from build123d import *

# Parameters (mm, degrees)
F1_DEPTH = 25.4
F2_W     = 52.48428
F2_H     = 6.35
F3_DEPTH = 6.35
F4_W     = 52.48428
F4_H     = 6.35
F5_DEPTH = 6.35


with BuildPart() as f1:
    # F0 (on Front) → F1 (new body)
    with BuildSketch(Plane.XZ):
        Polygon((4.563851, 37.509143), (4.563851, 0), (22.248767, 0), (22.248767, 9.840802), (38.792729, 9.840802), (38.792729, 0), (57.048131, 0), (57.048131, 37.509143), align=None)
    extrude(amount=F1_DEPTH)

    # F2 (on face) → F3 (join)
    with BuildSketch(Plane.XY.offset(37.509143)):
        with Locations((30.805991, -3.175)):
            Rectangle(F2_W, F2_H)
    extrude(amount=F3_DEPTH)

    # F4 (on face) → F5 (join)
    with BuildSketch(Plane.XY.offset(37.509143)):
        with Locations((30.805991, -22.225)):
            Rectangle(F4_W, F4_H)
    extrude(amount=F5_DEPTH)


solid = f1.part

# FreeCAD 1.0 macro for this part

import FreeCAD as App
import Part
import Sketcher
Q = App.Units.Quantity

doc = App.newDocument("Part")
body = doc.addObject("PartDesign::Body", "Body")

sketch1 = body.newObject("Sketcher::SketchObject", "Sketch")
sketch1.AttachmentSupport = (doc.getObject("XZ_Plane"), [""])
sketch1.MapMode = "FlatFace"
sketch1.addGeometry([
    Part.LineSegment(App.Vector(5, 38, 0), App.Vector(5, 0, 0)),
    Part.LineSegment(App.Vector(5, 0, 0), App.Vector(22, 0, 0)),
    Part.LineSegment(App.Vector(22, 0, 0), App.Vector(22, 10, 0)),
    Part.LineSegment(App.Vector(22, 10, 0), App.Vector(39, 10, 0)),
    Part.LineSegment(App.Vector(39, 10, 0), App.Vector(39, 0, 0)),
    Part.LineSegment(App.Vector(39, 0, 0), App.Vector(57, 0, 0)),
    Part.LineSegment(App.Vector(57, 0, 0), App.Vector(57, 38, 0)),
    Part.LineSegment(App.Vector(57, 38, 0), App.Vector(5, 38, 0)),
], False)
sketch1.addConstraint([
    Sketcher.Constraint("Coincident", 0, 2, 1, 1),
    Sketcher.Constraint("Coincident", 1, 2, 2, 1),
    Sketcher.Constraint("Coincident", 2, 2, 3, 1),
    Sketcher.Constraint("Coincident", 3, 2, 4, 1),
    Sketcher.Constraint("Coincident", 4, 2, 5, 1),
    Sketcher.Constraint("Coincident", 5, 2, 6, 1),
    Sketcher.Constraint("Coincident", 6, 2, 7, 1),
    Sketcher.Constraint("Coincident", 7, 2, 0, 1),
    Sketcher.Constraint("Vertical", 0),
    Sketcher.Constraint("Horizontal", 1),
    Sketcher.Constraint("Vertical", 2),
    Sketcher.Constraint("Horizontal", 3),
    Sketcher.Constraint("Vertical", 4),
    Sketcher.Constraint("Horizontal", 5),
    Sketcher.Constraint("Vertical", 6),
    Sketcher.Constraint("Horizontal", 7),
    Sketcher.Constraint("PointOnObject", 0, 2, -1),
    Sketcher.Constraint("PointOnObject", 4, 2, -1),
    Sketcher.Constraint("DistanceX", 5, 1, 5, 2, Q("18.255402 mm")),
    Sketcher.Constraint("DistanceX", 7, 2, 7, 1, Q("52.48428 mm")),
    Sketcher.Constraint("DistanceX", 1, 1, 1, 2, Q("17.684916 mm")),
    Sketcher.Constraint("DistanceY", 0, 2, 0, 1, Q("37.509143 mm")),
    Sketcher.Constraint("DistanceY", 2, 1, 2, 2, Q("9.840802 mm")),
    Sketcher.Constraint("DistanceX", -1, 1, 0, 2, Q("4.563851 mm")),
])
pad1 = body.newObject("PartDesign::Pad", "Pad")
pad1.Profile = sketch1
pad1.Length = Q("1 in")

sketch2 = body.newObject("Sketcher::SketchObject", "Sketch001")
sketch2.AttachmentSupport = (doc.getObject("XY_Plane"), [""])
sketch2.MapMode = "FlatFace"
sketch2.AttachmentOffset = App.Placement(App.Vector(0, 0, 37.509143), App.Rotation())
sketch2.addGeometry([
    Part.LineSegment(App.Vector(5, 0, 0), App.Vector(5, -6, 0)),
    Part.LineSegment(App.Vector(5, -6, 0), App.Vector(57, -6, 0)),
    Part.LineSegment(App.Vector(57, -6, 0), App.Vector(57, 0, 0)),
    Part.LineSegment(App.Vector(57, 0, 0), App.Vector(5, 0, 0)),
], False)
sketch2.addConstraint([
    Sketcher.Constraint("Coincident", 0, 2, 1, 1),
    Sketcher.Constraint("Coincident", 1, 2, 2, 1),
    Sketcher.Constraint("Coincident", 2, 2, 3, 1),
    Sketcher.Constraint("Coincident", 3, 2, 0, 1),
    Sketcher.Constraint("Vertical", 0),
    Sketcher.Constraint("Horizontal", 1),
    Sketcher.Constraint("Vertical", 2),
    Sketcher.Constraint("Horizontal", 3),
    Sketcher.Constraint("PointOnObject", 2, 2, -1),
    Sketcher.Constraint("DistanceY", 0, 2, 0, 1, Q("0.25 in")),
    Sketcher.Constraint("DistanceX", 1, 1, 1, 2, Q("52.48428 mm")),
    Sketcher.Constraint("DistanceX", -1, 1, 0, 2, Q("4.563851 mm")),
])
pad2 = body.newObject("PartDesign::Pad", "Pad001")
pad2.Profile = sketch2
pad2.Length = Q("0.25 in")

sketch3 = body.newObject("Sketcher::SketchObject", "Sketch002")
sketch3.AttachmentSupport = (doc.getObject("XY_Plane"), [""])
sketch3.MapMode = "FlatFace"
sketch3.AttachmentOffset = App.Placement(App.Vector(0, 0, 37.509143), App.Rotation())
sketch3.addGeometry([
    Part.LineSegment(App.Vector(5, -19, 0), App.Vector(5, -25, 0)),
    Part.LineSegment(App.Vector(5, -25, 0), App.Vector(57, -25, 0)),
    Part.LineSegment(App.Vector(57, -25, 0), App.Vector(57, -19, 0)),
    Part.LineSegment(App.Vector(57, -19, 0), App.Vector(5, -19, 0)),
], False)
sketch3.addConstraint([
    Sketcher.Constraint("Coincident", 0, 2, 1, 1),
    Sketcher.Constraint("Coincident", 1, 2, 2, 1),
    Sketcher.Constraint("Coincident", 2, 2, 3, 1),
    Sketcher.Constraint("Coincident", 3, 2, 0, 1),
    Sketcher.Constraint("Vertical", 0),
    Sketcher.Constraint("Horizontal", 1),
    Sketcher.Constraint("Vertical", 2),
    Sketcher.Constraint("Horizontal", 3),
    Sketcher.Constraint("DistanceY", 0, 2, -1, 1, Q("1 in")),
    Sketcher.Constraint("DistanceY", 0, 2, 0, 1, Q("0.25 in")),
    Sketcher.Constraint("DistanceX", 1, 1, 1, 2, Q("52.48428 mm")),
    Sketcher.Constraint("DistanceX", -1, 1, 0, 2, Q("4.563851 mm")),
])
pad3 = body.newObject("PartDesign::Pad", "Pad002")
pad3.Profile = sketch3
pad3.Length = Q("0.25 in")

doc.recompute()
